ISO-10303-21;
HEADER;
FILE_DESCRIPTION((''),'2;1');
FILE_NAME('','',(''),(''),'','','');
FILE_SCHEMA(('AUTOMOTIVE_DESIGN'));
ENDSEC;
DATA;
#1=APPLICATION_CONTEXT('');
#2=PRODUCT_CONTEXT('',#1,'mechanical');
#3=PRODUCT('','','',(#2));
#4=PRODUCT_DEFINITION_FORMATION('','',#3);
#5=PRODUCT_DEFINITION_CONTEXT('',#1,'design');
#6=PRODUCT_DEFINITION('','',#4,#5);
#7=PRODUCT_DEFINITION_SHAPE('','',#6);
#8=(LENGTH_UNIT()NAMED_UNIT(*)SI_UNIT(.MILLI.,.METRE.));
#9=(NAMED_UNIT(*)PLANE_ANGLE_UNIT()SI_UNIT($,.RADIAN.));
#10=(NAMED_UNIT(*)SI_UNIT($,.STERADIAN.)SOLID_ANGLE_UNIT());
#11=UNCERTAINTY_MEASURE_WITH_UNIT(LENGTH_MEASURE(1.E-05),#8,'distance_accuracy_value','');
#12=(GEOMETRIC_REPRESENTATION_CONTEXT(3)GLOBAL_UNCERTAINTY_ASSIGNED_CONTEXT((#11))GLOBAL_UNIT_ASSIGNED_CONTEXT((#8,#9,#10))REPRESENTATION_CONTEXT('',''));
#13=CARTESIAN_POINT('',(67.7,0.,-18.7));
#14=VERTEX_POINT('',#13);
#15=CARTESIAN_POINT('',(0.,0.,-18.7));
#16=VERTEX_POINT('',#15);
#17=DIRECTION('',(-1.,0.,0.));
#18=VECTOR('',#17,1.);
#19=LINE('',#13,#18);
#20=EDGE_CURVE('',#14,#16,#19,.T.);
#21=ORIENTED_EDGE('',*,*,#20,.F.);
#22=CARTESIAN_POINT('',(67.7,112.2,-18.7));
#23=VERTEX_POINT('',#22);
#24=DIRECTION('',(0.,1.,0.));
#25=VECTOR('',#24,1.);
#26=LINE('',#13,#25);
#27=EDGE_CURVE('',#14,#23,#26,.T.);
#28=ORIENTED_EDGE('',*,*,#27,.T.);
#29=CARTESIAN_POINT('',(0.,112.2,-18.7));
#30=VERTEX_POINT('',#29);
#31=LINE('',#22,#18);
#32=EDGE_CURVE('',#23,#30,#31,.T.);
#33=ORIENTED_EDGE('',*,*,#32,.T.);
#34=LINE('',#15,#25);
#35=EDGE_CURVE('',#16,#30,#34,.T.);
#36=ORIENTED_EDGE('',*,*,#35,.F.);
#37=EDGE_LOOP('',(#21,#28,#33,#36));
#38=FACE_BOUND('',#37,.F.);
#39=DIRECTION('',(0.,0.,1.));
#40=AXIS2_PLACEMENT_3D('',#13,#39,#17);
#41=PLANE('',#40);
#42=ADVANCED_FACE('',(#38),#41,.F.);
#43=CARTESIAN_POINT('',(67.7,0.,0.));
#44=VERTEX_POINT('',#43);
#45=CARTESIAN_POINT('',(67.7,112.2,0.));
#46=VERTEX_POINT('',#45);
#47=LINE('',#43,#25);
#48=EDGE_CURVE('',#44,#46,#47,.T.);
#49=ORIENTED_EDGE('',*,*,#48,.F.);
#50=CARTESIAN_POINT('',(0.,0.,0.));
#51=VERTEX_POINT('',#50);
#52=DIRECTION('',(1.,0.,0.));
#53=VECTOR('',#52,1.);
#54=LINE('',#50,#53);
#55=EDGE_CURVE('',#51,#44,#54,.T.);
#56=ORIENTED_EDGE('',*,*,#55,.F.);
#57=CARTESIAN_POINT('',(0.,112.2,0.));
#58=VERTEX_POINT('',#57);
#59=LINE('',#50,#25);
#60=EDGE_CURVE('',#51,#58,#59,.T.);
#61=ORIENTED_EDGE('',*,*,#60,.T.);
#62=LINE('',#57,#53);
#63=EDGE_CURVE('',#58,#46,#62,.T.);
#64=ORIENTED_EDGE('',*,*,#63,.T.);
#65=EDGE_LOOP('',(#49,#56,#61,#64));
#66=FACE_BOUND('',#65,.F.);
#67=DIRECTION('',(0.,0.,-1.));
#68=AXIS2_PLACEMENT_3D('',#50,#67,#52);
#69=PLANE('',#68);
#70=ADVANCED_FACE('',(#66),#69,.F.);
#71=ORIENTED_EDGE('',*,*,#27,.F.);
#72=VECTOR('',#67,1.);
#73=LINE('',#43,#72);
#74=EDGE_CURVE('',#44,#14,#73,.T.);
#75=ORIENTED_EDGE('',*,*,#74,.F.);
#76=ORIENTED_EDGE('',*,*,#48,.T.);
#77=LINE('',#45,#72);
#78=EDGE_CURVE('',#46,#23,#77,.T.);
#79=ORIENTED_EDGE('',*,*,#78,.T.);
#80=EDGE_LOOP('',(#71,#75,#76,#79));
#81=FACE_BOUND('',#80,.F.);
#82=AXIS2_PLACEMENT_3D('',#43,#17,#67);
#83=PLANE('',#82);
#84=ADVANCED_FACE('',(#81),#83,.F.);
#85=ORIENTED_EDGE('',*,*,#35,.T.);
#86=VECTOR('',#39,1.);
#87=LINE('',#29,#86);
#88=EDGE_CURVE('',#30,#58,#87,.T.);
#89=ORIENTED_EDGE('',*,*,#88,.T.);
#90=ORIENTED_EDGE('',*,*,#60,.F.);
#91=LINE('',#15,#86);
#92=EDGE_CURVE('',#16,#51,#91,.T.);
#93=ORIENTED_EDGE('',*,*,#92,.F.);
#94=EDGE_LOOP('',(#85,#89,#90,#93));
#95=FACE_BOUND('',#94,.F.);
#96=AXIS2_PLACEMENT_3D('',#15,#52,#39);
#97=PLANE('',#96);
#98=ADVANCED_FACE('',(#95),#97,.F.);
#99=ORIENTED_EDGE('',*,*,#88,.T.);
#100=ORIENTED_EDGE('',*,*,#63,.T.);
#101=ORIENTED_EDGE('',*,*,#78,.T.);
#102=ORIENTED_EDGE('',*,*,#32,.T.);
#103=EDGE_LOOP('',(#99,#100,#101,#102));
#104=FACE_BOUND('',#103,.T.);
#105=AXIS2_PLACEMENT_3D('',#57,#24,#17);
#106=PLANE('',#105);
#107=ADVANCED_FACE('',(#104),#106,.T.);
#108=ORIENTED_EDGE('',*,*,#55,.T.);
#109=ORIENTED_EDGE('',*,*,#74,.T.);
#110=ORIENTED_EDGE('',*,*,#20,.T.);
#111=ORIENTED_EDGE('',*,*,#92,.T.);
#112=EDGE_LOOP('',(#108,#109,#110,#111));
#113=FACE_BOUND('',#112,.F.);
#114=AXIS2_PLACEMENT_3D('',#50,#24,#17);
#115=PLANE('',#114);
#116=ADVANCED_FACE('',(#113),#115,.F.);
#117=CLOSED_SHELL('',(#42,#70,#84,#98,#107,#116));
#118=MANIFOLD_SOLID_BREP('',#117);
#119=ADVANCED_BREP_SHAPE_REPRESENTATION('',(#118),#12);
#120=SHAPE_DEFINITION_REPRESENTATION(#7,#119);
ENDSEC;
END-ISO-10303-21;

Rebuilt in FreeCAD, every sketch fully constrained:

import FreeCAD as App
import Part
import Sketcher

V = App.Vector


def add_polygon(sketch, points):
    """Adds a closed chain of lines whose ends are joined by coincident constraints."""
    first, n = sketch.GeometryCount, len(points)
    for a, b in zip(points, points[1:] + points[:1]):
        sketch.addGeometry(Part.LineSegment(App.Vector(*a, 0), App.Vector(*b, 0)), False)
    for i in range(n):
        sketch.addConstraint(Sketcher.Constraint("Coincident", first + i, 2, first + (i + 1) % n, 1))

doc = App.newDocument("Part")
body = doc.addObject("PartDesign::Body", "Body")

# Sketch on XZ plane
sketch1 = doc.addObject("Sketcher::SketchObject", "Sketch")
body.addObject(sketch1)
sketch1.AttachmentSupport = (doc.XZ_Plane, [""])
sketch1.MapMode = "FlatFace"
add_polygon(sketch1, [(0, -19), (0, 0), (68, 0), (68, -19)])  # lines 0-3
sketch1.addConstraint([
    Sketcher.Constraint("Vertical", 0),
    Sketcher.Constraint("Horizontal", 1),
    Sketcher.Constraint("Vertical", 2),
    Sketcher.Constraint("Horizontal", 3),
    Sketcher.Constraint("Coincident", 0, 2, -1, 1),
    Sketcher.Constraint("DistanceX", 1, 1, 1, 2, 67.7),
    Sketcher.Constraint("DistanceY", 0, 1, 0, 2, 18.7),
])
pad1 = doc.addObject("PartDesign::Pad", "Pad")
body.addObject(pad1)
pad1.Profile = sketch1
pad1.Length = 112.2
pad1.Reversed = True

doc.recompute()
